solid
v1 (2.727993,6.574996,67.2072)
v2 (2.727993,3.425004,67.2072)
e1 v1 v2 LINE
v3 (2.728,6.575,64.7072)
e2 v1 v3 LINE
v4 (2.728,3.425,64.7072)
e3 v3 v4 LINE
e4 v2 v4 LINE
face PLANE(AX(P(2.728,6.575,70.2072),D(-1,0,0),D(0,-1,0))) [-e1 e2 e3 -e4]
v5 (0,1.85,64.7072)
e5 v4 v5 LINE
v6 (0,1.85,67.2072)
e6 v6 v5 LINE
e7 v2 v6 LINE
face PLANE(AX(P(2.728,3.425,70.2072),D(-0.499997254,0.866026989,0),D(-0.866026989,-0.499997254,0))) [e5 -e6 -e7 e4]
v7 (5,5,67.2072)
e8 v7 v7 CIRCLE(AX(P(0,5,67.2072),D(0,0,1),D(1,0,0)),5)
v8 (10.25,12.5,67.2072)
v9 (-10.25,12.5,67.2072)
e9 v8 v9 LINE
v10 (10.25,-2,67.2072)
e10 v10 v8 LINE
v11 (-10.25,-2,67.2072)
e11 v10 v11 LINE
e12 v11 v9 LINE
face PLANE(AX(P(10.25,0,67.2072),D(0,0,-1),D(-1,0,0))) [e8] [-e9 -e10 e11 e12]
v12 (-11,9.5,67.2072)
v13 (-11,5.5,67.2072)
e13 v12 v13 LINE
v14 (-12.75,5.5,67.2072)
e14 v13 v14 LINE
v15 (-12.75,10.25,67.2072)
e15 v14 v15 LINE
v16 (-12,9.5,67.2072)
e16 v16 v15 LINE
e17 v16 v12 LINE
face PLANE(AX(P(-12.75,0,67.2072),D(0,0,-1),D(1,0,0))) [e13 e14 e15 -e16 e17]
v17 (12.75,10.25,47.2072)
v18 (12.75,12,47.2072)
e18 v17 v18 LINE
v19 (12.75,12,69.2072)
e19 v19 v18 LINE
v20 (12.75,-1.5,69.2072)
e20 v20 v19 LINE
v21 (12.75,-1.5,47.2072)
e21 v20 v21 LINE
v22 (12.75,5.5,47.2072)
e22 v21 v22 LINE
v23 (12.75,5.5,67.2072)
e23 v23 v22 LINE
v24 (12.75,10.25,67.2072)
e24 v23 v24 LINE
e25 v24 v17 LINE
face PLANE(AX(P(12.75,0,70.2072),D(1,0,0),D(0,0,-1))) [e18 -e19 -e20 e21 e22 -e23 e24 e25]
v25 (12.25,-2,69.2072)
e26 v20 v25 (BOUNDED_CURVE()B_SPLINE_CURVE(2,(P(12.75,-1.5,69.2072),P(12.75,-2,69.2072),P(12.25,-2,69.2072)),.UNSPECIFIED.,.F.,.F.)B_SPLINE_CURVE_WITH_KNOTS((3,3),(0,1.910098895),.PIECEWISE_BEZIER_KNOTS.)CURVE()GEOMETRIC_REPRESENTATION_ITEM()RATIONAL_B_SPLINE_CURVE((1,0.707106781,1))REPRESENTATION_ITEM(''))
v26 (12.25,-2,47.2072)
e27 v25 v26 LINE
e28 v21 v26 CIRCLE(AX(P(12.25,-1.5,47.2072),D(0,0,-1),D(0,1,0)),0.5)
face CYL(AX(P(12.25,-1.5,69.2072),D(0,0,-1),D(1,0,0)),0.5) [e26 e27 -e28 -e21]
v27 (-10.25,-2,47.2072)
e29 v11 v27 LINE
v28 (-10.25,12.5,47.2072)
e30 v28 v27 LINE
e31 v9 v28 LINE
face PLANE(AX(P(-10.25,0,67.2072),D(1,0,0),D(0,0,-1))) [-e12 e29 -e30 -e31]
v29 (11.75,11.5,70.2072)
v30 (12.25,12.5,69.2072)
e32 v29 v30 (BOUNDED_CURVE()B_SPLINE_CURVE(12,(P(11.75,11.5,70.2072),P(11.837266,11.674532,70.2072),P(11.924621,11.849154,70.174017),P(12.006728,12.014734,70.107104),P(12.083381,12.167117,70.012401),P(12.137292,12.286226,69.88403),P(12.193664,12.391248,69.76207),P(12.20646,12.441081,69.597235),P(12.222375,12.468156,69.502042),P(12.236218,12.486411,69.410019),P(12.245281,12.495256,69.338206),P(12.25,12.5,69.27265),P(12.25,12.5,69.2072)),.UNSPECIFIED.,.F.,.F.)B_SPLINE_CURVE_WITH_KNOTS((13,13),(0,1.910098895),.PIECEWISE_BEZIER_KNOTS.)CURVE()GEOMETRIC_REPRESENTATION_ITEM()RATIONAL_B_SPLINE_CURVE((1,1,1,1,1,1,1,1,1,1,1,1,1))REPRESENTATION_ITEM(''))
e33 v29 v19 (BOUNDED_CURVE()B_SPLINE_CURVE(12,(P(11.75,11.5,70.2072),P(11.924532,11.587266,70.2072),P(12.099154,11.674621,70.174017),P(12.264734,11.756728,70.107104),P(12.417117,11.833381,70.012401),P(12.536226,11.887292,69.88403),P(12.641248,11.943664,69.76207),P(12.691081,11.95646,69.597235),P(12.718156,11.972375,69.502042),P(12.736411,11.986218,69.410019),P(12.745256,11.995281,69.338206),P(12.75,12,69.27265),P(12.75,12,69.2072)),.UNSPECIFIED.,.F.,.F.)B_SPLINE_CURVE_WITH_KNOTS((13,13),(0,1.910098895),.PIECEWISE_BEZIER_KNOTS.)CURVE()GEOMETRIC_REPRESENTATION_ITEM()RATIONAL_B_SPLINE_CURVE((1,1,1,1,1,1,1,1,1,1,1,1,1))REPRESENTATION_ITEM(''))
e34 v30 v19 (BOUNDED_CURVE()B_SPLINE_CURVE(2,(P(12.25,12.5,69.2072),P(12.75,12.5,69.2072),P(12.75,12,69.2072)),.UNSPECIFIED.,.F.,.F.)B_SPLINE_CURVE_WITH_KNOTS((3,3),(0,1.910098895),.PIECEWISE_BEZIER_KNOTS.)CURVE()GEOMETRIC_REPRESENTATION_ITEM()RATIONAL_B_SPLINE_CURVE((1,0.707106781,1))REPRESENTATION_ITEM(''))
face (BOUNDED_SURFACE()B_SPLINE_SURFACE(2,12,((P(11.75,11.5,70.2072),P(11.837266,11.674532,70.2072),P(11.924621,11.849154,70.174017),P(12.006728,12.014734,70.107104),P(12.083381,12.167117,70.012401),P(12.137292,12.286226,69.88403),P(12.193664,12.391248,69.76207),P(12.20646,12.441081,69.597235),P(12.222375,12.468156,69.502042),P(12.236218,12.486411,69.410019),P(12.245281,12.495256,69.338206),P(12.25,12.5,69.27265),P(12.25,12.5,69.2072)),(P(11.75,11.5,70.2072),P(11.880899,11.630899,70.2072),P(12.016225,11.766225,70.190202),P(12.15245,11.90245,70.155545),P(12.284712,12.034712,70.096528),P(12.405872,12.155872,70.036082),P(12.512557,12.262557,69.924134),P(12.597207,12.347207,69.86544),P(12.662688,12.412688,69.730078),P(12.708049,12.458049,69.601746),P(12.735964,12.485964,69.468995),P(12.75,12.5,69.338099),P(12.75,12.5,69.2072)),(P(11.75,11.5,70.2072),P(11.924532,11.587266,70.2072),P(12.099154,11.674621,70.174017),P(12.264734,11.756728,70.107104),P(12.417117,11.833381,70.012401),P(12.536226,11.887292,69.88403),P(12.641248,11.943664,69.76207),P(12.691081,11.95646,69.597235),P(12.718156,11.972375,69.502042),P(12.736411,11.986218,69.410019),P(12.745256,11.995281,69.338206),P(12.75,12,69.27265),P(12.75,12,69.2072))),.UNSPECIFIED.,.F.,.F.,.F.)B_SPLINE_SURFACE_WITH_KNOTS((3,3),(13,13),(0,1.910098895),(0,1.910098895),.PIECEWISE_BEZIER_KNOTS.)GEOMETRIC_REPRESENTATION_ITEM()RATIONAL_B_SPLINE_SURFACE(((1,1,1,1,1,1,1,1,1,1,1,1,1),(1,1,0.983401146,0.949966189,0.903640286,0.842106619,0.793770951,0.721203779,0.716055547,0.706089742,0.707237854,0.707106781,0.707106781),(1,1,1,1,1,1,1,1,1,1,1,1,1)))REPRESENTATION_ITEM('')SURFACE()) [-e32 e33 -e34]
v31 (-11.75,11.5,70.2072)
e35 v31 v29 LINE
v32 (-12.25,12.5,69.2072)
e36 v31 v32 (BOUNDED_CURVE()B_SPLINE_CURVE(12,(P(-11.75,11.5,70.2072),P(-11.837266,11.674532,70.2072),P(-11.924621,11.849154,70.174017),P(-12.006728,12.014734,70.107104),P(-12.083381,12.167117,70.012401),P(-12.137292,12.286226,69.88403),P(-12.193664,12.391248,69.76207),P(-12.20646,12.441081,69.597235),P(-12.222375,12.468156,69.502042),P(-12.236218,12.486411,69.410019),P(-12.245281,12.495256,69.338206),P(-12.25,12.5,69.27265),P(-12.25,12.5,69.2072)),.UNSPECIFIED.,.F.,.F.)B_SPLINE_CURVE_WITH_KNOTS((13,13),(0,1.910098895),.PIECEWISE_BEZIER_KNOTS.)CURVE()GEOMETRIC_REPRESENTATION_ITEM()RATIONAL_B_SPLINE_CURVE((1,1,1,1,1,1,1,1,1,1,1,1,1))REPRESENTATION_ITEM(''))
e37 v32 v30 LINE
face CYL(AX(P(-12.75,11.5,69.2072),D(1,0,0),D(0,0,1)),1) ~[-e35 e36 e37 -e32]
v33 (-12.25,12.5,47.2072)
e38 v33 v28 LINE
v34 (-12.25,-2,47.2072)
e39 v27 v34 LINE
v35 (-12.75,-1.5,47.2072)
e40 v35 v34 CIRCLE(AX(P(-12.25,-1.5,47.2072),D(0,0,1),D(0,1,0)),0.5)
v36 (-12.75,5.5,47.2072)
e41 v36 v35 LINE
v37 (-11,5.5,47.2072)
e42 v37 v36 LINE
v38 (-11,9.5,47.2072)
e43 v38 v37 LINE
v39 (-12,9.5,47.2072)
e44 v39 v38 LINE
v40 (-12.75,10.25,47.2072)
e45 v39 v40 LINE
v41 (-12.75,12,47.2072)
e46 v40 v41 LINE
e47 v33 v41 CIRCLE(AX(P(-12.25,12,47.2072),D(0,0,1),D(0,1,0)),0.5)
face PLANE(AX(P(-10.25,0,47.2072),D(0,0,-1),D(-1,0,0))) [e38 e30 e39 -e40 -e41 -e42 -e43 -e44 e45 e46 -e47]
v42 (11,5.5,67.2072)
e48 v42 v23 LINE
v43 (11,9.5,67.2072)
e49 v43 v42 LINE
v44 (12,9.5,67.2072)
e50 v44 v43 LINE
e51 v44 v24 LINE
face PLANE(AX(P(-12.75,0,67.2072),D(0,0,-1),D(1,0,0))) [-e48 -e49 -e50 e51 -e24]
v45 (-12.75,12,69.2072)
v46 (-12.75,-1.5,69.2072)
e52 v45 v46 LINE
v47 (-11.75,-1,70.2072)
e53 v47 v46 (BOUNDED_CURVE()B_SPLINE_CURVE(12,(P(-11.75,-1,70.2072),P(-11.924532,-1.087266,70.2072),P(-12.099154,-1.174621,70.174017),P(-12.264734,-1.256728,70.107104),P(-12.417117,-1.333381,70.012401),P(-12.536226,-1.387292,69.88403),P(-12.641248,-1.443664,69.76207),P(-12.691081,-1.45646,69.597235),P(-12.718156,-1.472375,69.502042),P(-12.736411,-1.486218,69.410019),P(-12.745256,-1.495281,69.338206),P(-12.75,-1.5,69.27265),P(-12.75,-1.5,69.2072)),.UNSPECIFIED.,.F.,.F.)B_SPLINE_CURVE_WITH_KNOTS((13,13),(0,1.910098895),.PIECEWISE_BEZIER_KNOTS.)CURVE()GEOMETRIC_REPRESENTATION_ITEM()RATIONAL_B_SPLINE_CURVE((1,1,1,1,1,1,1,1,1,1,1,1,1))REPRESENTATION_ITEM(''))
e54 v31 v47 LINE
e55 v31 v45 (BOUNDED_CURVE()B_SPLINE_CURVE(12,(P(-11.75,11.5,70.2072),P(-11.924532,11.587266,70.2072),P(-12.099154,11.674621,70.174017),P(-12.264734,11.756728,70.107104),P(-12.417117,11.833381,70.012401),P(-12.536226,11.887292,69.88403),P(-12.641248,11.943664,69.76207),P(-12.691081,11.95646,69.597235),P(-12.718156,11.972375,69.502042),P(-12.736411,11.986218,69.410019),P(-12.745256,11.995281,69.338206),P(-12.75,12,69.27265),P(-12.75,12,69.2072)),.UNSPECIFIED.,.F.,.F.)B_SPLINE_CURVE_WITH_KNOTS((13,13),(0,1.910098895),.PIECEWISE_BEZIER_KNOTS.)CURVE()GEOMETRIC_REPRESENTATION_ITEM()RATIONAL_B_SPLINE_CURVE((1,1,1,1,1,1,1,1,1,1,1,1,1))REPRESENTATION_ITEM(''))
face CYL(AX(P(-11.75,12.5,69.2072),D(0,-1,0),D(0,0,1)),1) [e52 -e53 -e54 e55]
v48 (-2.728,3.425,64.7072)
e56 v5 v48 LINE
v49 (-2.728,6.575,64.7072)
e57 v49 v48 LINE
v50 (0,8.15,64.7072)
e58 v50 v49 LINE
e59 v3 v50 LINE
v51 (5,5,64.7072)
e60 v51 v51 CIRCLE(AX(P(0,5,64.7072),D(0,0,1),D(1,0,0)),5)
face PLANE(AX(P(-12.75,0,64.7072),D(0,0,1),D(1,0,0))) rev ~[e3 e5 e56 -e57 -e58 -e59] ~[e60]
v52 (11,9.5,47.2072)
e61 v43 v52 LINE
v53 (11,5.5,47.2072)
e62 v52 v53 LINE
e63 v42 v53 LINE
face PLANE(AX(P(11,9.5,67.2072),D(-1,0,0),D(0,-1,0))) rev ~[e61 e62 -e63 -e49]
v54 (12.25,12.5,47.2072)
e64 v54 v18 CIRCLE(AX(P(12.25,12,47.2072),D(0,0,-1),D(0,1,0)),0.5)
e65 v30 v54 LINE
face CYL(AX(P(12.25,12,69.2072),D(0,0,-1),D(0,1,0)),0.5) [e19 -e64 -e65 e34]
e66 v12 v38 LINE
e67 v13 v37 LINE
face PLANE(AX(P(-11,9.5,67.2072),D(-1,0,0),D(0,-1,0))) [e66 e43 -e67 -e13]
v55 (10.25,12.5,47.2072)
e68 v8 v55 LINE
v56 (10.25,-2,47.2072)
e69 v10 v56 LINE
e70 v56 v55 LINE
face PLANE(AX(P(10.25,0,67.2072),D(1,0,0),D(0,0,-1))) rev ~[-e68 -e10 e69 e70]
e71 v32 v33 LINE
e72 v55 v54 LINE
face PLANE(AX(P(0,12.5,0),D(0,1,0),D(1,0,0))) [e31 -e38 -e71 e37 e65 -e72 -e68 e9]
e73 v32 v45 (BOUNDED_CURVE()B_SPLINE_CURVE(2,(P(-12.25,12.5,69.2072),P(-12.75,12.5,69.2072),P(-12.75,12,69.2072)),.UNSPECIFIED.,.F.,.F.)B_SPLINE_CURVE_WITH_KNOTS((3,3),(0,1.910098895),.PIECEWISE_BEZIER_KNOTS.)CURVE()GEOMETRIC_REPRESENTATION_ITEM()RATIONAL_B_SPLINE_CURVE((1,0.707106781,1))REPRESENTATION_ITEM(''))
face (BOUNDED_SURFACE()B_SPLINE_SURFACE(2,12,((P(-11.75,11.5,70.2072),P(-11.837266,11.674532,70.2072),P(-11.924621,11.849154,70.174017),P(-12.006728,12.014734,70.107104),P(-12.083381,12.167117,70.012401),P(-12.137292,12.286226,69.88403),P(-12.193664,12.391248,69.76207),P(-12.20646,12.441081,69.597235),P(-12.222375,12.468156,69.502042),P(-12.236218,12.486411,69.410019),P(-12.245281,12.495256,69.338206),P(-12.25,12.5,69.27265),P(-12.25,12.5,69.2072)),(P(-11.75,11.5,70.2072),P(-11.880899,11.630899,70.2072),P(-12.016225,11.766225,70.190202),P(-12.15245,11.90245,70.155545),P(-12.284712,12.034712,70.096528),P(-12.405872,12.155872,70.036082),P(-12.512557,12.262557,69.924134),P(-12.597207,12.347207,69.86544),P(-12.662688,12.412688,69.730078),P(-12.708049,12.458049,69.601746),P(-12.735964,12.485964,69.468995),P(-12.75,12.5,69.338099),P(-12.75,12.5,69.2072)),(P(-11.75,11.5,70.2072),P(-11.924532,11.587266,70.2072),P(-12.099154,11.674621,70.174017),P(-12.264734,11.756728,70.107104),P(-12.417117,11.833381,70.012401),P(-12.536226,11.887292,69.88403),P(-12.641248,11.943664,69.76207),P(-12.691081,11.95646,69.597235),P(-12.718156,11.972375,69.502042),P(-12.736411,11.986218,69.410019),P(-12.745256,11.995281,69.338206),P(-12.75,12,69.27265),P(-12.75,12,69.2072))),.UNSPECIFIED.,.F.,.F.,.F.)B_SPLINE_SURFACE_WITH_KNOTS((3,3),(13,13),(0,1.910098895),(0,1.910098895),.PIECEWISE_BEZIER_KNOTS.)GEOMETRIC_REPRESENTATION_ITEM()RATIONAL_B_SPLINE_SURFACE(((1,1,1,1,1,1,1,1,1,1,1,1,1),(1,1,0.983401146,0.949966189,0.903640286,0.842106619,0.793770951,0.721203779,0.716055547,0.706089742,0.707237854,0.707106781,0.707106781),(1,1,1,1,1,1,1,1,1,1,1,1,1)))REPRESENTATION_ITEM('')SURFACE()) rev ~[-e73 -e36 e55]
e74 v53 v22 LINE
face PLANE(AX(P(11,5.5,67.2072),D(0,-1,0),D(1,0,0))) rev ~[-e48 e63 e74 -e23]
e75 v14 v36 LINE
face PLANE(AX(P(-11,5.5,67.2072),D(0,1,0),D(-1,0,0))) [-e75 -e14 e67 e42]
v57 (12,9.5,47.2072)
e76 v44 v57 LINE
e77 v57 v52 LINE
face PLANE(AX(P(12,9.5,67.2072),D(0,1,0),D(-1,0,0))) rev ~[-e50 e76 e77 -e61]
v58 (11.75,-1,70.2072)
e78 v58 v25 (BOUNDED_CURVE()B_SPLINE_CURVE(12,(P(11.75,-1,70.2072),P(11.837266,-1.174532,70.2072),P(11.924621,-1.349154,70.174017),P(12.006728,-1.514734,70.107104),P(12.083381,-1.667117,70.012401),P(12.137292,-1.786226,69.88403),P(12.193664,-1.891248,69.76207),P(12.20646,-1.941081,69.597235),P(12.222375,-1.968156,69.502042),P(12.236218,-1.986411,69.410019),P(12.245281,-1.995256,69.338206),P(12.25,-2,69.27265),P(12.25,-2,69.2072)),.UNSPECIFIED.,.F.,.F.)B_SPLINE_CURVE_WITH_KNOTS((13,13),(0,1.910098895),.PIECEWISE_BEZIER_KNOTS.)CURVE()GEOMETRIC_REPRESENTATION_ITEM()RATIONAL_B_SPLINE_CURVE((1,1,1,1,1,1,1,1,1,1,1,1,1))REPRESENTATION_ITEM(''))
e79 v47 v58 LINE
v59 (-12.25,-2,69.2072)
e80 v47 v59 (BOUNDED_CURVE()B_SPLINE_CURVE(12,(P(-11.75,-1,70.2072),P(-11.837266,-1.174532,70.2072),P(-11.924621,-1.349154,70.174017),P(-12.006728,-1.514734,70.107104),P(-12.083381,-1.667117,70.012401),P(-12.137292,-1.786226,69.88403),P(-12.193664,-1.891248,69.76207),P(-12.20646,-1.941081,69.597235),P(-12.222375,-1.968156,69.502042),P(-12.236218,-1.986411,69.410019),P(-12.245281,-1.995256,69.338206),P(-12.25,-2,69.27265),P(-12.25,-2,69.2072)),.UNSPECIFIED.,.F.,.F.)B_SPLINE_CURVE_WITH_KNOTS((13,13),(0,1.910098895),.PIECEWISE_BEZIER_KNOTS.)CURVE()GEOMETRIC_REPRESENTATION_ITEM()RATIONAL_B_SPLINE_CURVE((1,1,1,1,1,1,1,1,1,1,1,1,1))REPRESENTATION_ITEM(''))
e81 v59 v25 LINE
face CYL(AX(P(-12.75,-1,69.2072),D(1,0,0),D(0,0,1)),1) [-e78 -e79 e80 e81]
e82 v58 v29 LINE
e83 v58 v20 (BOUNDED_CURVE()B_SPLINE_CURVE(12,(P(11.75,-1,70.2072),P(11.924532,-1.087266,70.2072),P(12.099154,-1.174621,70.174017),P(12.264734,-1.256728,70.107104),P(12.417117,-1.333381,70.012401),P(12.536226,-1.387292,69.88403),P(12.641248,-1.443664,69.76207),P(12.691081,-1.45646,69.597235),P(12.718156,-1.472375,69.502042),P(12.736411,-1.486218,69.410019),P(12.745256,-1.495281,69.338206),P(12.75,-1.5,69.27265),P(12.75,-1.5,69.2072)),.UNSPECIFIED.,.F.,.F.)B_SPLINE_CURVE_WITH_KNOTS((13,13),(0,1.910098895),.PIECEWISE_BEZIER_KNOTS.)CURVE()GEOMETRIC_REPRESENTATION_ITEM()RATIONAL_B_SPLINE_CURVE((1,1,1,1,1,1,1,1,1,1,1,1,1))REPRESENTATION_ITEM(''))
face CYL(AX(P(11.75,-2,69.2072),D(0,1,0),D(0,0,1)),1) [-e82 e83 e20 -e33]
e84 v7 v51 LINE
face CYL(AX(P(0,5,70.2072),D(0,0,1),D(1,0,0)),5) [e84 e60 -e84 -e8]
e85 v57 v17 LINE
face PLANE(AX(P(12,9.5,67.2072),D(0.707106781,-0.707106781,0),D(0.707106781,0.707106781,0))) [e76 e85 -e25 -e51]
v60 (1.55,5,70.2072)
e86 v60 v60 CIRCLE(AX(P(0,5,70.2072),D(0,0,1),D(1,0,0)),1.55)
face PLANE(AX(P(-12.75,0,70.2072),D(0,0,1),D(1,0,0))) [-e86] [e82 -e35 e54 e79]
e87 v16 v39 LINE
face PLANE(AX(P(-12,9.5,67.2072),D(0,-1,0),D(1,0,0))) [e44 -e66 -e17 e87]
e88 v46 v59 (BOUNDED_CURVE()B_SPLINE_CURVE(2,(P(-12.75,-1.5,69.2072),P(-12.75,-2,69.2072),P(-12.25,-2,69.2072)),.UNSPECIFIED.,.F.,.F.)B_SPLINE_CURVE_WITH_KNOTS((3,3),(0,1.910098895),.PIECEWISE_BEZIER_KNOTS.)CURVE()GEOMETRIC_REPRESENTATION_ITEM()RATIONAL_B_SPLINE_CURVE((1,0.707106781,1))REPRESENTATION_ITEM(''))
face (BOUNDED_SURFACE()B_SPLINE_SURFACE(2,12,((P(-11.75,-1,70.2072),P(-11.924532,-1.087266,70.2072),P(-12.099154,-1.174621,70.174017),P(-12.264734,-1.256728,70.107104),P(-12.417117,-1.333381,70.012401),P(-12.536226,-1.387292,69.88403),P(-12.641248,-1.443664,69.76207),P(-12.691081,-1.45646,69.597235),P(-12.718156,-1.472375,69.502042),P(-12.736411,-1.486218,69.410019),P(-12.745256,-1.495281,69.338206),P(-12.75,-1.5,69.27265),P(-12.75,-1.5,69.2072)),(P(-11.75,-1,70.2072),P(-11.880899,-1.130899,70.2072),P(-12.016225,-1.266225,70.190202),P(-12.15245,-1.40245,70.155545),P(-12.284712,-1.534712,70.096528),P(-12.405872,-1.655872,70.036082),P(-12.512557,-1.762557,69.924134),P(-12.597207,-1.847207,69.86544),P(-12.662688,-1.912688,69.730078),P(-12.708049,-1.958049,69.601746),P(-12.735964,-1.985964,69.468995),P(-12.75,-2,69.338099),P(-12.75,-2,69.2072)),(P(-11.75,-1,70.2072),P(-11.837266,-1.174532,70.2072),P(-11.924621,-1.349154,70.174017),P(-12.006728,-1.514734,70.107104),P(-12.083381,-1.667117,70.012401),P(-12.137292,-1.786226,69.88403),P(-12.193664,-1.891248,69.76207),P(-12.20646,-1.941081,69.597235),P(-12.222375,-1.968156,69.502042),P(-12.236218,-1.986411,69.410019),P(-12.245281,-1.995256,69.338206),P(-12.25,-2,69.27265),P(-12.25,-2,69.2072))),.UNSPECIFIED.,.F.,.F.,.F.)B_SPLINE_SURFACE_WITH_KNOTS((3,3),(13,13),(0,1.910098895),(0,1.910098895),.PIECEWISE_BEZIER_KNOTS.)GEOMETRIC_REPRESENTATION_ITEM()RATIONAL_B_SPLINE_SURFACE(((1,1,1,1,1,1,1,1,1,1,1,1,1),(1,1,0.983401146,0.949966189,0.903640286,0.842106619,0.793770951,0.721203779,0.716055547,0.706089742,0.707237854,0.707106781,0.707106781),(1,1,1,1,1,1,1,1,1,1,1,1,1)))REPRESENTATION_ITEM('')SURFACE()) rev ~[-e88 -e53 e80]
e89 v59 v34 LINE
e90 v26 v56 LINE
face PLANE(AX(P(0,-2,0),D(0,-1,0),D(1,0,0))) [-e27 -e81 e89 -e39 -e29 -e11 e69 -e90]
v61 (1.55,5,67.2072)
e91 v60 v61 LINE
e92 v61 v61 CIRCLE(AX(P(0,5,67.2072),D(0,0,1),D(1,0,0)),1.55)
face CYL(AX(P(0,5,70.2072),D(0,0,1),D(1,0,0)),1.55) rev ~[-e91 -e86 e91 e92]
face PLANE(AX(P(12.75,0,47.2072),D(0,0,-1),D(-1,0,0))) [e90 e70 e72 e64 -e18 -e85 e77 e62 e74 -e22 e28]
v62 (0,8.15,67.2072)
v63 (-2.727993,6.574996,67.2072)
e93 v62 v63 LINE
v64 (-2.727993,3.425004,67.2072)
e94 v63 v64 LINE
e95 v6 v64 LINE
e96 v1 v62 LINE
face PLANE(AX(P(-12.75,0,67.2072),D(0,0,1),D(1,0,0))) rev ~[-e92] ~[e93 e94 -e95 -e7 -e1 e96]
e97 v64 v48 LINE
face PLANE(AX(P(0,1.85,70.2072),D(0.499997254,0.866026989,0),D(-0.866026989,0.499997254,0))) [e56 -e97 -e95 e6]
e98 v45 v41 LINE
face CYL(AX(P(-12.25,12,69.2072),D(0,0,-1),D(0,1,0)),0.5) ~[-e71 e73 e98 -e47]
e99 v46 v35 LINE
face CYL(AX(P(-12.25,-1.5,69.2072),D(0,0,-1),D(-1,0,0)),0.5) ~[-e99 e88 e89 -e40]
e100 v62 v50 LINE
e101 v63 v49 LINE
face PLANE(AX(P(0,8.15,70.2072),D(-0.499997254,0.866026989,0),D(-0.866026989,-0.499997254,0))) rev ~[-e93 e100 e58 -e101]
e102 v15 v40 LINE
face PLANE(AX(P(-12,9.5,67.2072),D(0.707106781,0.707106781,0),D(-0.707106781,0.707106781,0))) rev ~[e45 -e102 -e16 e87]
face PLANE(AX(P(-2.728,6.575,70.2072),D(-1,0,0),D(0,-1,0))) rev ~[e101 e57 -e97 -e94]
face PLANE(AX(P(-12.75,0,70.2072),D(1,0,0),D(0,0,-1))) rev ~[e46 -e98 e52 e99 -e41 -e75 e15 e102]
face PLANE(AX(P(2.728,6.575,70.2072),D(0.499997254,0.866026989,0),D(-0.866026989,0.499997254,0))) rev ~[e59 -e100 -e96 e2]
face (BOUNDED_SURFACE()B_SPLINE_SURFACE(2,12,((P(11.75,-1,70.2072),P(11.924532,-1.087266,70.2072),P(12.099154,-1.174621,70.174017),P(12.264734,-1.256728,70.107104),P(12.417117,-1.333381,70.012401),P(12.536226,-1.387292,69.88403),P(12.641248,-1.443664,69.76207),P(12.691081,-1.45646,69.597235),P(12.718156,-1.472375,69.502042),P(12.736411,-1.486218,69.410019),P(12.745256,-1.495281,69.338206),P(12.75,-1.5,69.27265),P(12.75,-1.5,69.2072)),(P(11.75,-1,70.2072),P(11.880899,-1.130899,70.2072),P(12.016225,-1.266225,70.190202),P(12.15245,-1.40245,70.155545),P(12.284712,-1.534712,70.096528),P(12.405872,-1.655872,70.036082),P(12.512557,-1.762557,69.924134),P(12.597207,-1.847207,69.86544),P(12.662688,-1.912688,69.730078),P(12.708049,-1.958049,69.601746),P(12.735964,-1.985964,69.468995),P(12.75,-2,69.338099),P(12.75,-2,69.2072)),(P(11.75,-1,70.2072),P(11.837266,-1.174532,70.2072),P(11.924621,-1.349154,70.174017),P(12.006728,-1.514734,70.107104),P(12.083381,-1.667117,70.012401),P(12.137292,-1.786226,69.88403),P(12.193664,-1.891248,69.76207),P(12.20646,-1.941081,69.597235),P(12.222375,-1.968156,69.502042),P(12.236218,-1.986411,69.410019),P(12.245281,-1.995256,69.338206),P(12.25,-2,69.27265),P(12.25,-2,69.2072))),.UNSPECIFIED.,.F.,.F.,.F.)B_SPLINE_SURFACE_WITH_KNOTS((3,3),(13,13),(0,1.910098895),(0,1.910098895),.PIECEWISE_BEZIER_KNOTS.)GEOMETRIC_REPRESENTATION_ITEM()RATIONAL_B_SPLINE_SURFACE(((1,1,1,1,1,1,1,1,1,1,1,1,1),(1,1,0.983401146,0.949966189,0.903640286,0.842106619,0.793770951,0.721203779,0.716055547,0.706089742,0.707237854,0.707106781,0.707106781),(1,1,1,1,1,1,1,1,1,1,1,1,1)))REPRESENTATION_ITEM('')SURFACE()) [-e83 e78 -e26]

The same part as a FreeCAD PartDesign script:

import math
import FreeCAD as App
import Part
import Sketcher
from FreeCAD import Vector
Q = App.Units.Quantity


def edges_at(feature, points):
    """Names of the edges that pass closest to the given points."""
    edges = feature.Shape.Edges
    near = lambda p: min(range(len(edges)), key=lambda i: edges[i].distToShape(Part.Vertex(*p))[0])
    return sorted({f"Edge{near(p) + 1}" for p in points})

doc = App.newDocument("Part")
body = doc.addObject("PartDesign::Body", "Body")

sketch1 = doc.addObject("Sketcher::SketchObject", "Sketch")
body.addObject(sketch1)
sketch1.AttachmentSupport = (doc.XZ_Plane, [""])
sketch1.MapMode = "FlatFace"
sketch1.addGeometry(Part.LineSegment(Vector(12.8, 70.2, 0), Vector(12.8, 67.2, 0)), False)
sketch1.addGeometry(Part.LineSegment(Vector(12.8, 67.2, 0), Vector(-12.8, 67.2, 0)), False)
sketch1.addGeometry(Part.LineSegment(Vector(-12.8, 67.2, 0), Vector(-12.8, 70.2, 0)), False)
sketch1.addGeometry(Part.LineSegment(Vector(-12.8, 70.2, 0), Vector(12.8, 70.2, 0)), False)
sketch1.addConstraint(Sketcher.Constraint("Coincident", 0, 2, 1, 1))
sketch1.addConstraint(Sketcher.Constraint("Coincident", 1, 2, 2, 1))
sketch1.addConstraint(Sketcher.Constraint("Coincident", 2, 2, 3, 1))
sketch1.addConstraint(Sketcher.Constraint("Coincident", 3, 2, 0, 1))
sketch1.addConstraint(Sketcher.Constraint("Vertical", 0))
sketch1.addConstraint(Sketcher.Constraint("Horizontal", 1))
sketch1.addConstraint(Sketcher.Constraint("Vertical", 2))
sketch1.addConstraint(Sketcher.Constraint("Horizontal", 3))
sketch1.addConstraint(Sketcher.Constraint("DistanceY", 0, 2, 0, 1, Q("3 mm")))
sketch1.addConstraint(Sketcher.Constraint("DistanceX", 1, 2, 1, 1, Q("25.5 mm")))
sketch1.addConstraint(Sketcher.Constraint("DistanceX", -1, 1, 0, 2, Q("12.75 mm")))
sketch1.addConstraint(Sketcher.Constraint("DistanceY", -1, 1, 0, 2, Q("67.2072 mm")))
pad1 = doc.addObject("PartDesign::Pad", "Pad")
body.addObject(pad1)
pad1.Profile = sketch1
pad1.Length = 14
pad1.Reversed = True

sketch2 = doc.addObject("Sketcher::SketchObject", "Sketch001")
body.addObject(sketch2)
sketch2.AttachmentSupport = (doc.XY_Plane, [""])
sketch2.MapMode = "FlatFace"
sketch2.AttachmentOffset = App.Placement(Vector(0, 0, 67.2072), App.Rotation())
sketch2.addGeometry(Part.LineSegment(Vector(10.2, 14, 0), Vector(12.8, 14, 0)), False)
sketch2.addGeometry(Part.LineSegment(Vector(12.8, 14, 0), Vector(12.8, 10.2, 0)), False)
sketch2.addGeometry(Part.LineSegment(Vector(12.8, 10.2, 0), Vector(12, 9.5, 0)), False)
sketch2.addGeometry(Part.LineSegment(Vector(12, 9.5, 0), Vector(11, 9.5, 0)), False)
sketch2.addGeometry(Part.LineSegment(Vector(11, 9.5, 0), Vector(11, 5.5, 0)), False)
sketch2.addGeometry(Part.LineSegment(Vector(11, 5.5, 0), Vector(12.8, 5.5, 0)), False)
sketch2.addGeometry(Part.LineSegment(Vector(12.8, 5.5, 0), Vector(12.8, 0, 0)), False)
sketch2.addGeometry(Part.LineSegment(Vector(12.8, 0, 0), Vector(10.2, 0, 0)), False)
sketch2.addGeometry(Part.LineSegment(Vector(10.2, 0, 0), Vector(10.2, 14, 0)), False)
sketch2.addGeometry(Part.LineSegment(Vector(-12.8, 10.2, 0), Vector(-12.8, 14, 0)), False)
sketch2.addGeometry(Part.LineSegment(Vector(-12.8, 14, 0), Vector(-10.2, 14, 0)), False)
sketch2.addGeometry(Part.LineSegment(Vector(-10.2, 14, 0), Vector(-10.2, 0, 0)), False)
sketch2.addGeometry(Part.LineSegment(Vector(-10.2, 0, 0), Vector(-12.8, 0, 0)), False)
sketch2.addGeometry(Part.LineSegment(Vector(-12.8, 0, 0), Vector(-12.8, 5.5, 0)), False)
sketch2.addGeometry(Part.LineSegment(Vector(-12.8, 5.5, 0), Vector(-11, 5.5, 0)), False)
sketch2.addGeometry(Part.LineSegment(Vector(-11, 5.5, 0), Vector(-11, 9.5, 0)), False)
sketch2.addGeometry(Part.LineSegment(Vector(-11, 9.5, 0), Vector(-12, 9.5, 0)), False)
sketch2.addGeometry(Part.LineSegment(Vector(-12, 9.5, 0), Vector(-12.8, 10.2, 0)), False)
sketch2.addConstraint(Sketcher.Constraint("Coincident", 0, 2, 1, 1))
sketch2.addConstraint(Sketcher.Constraint("Coincident", 1, 2, 2, 1))
sketch2.addConstraint(Sketcher.Constraint("Coincident", 2, 2, 3, 1))
sketch2.addConstraint(Sketcher.Constraint("Coincident", 3, 2, 4, 1))
sketch2.addConstraint(Sketcher.Constraint("Coincident", 4, 2, 5, 1))
sketch2.addConstraint(Sketcher.Constraint("Coincident", 5, 2, 6, 1))
sketch2.addConstraint(Sketcher.Constraint("Coincident", 6, 2, 7, 1))
sketch2.addConstraint(Sketcher.Constraint("Coincident", 7, 2, 8, 1))
sketch2.addConstraint(Sketcher.Constraint("Coincident", 8, 2, 0, 1))
sketch2.addConstraint(Sketcher.Constraint("Coincident", 9, 2, 10, 1))
sketch2.addConstraint(Sketcher.Constraint("Coincident", 10, 2, 11, 1))
sketch2.addConstraint(Sketcher.Constraint("Coincident", 11, 2, 12, 1))
sketch2.addConstraint(Sketcher.Constraint("Coincident", 12, 2, 13, 1))
sketch2.addConstraint(Sketcher.Constraint("Coincident", 13, 2, 14, 1))
sketch2.addConstraint(Sketcher.Constraint("Coincident", 14, 2, 15, 1))
sketch2.addConstraint(Sketcher.Constraint("Coincident", 15, 2, 16, 1))
sketch2.addConstraint(Sketcher.Constraint("Coincident", 16, 2, 17, 1))
sketch2.addConstraint(Sketcher.Constraint("Coincident", 17, 2, 9, 1))
sketch2.addConstraint(Sketcher.Constraint("Horizontal", 0))
sketch2.addConstraint(Sketcher.Constraint("Vertical", 1))
sketch2.addConstraint(Sketcher.Constraint("Horizontal", 3))
sketch2.addConstraint(Sketcher.Constraint("Vertical", 4))
sketch2.addConstraint(Sketcher.Constraint("Horizontal", 5))
sketch2.addConstraint(Sketcher.Constraint("Vertical", 6))
sketch2.addConstraint(Sketcher.Constraint("Horizontal", 7))
sketch2.addConstraint(Sketcher.Constraint("Vertical", 8))
sketch2.addConstraint(Sketcher.Constraint("Vertical", 9))
sketch2.addConstraint(Sketcher.Constraint("Horizontal", 10))
sketch2.addConstraint(Sketcher.Constraint("Vertical", 11))
sketch2.addConstraint(Sketcher.Constraint("Horizontal", 12))
sketch2.addConstraint(Sketcher.Constraint("Vertical", 13))
sketch2.addConstraint(Sketcher.Constraint("Horizontal", 14))
sketch2.addConstraint(Sketcher.Constraint("Vertical", 15))
sketch2.addConstraint(Sketcher.Constraint("Horizontal", 16))
sketch2.addConstraint(Sketcher.Constraint("Symmetric", 7, 2, 11, 2, -1, 1))
sketch2.addConstraint(Sketcher.Constraint("Symmetric", 0, 2, 9, 2, -2))
sketch2.addConstraint(Sketcher.Constraint("Symmetric", 6, 2, 12, 2, -2))
sketch2.addConstraint(Sketcher.Constraint("Symmetric", 4, 2, 14, 2, -2))
sketch2.addConstraint(Sketcher.Constraint("Symmetric", 2, 2, 16, 2, -2))
sketch2.addConstraint(Sketcher.Constraint("Perpendicular", 2, 17))
sketch2.addConstraint(Sketcher.Constraint("Horizontal", 1, 2, 17, 2))
sketch2.addConstraint(Sketcher.Constraint("Vertical", 1, 2, 5, 2))
sketch2.addConstraint(Sketcher.Constraint("DistanceY", 6, 2, 6, 1, Q("5.5 mm")))
sketch2.addConstraint(Sketcher.Constraint("DistanceX", 10, 2, 8, 2, Q("20.5 mm")))
sketch2.addConstraint(Sketcher.Constraint("DistanceX", 3, 2, 3, 1, Q("1 mm")))
sketch2.addConstraint(Sketcher.Constraint("DistanceY", 4, 2, 4, 1, Q("4 mm")))
sketch2.addConstraint(Sketcher.Constraint("DistanceY", 8, 1, 8, 2, Q("14 mm")))
sketch2.addConstraint(Sketcher.Constraint("DistanceX", 0, 1, 0, 2, Q("2.5 mm")))
sketch2.addConstraint(Sketcher.Constraint("DistanceX", -1, 1, 2, 2, Q("12 mm")))
pad2 = doc.addObject("PartDesign::Pad", "Pad001")
body.addObject(pad2)
pad2.Profile = sketch2
pad2.Length = 20
pad2.Reversed = True

sketch3 = doc.addObject("Sketcher::SketchObject", "Sketch002")
body.addObject(sketch3)
sketch3.AttachmentSupport = (doc.XY_Plane, [""])
sketch3.MapMode = "FlatFace"
sketch3.AttachmentOffset = App.Placement(Vector(0, 0, 70.2072), App.Rotation())
sketch3.addGeometry(Part.Circle(Vector(0, 5, 0), Vector(0, 0, 1), 1.6), False)
sketch3.addConstraint(Sketcher.Constraint("PointOnObject", 0, 3, -2))
sketch3.addConstraint(Sketcher.Constraint("Diameter", 0, Q("3.1 mm")))
sketch3.addConstraint(Sketcher.Constraint("DistanceY", -1, 1, 0, 3, Q("5 mm")))
pocket1 = doc.addObject("PartDesign::Pocket", "Pocket")
body.addObject(pocket1)
pocket1.Profile = sketch3
pocket1.Length = 5.5

sketch4 = doc.addObject("Sketcher::SketchObject", "Sketch003")
body.addObject(sketch4)
sketch4.AttachmentSupport = (doc.XY_Plane, [""])
sketch4.MapMode = "FlatFace"
sketch4.AttachmentOffset = App.Placement(Vector(0, 0, 70.2072), App.Rotation())
sketch4.addGeometry(Part.LineSegment(Vector(2.7, 3.4, 0), Vector(2.7, 6.6, 0)), False)
sketch4.addGeometry(Part.LineSegment(Vector(2.7, 6.6, 0), Vector(0, 8.2, 0)), False)
sketch4.addGeometry(Part.LineSegment(Vector(0, 8.2, 0), Vector(-2.7, 6.6, 0)), False)
sketch4.addGeometry(Part.LineSegment(Vector(-2.7, 6.6, 0), Vector(-2.7, 3.4, 0)), False)
sketch4.addGeometry(Part.LineSegment(Vector(-2.7, 3.4, 0), Vector(0, 1.9, 0)), False)
sketch4.addGeometry(Part.LineSegment(Vector(0, 1.9, 0), Vector(2.7, 3.4, 0)), False)
sketch4.addGeometry(Part.Circle(Vector(0, 5, 0), Vector(0, 0, 1), 1.6), False)
sketch4.addConstraint(Sketcher.Constraint("Coincident", 0, 2, 1, 1))
sketch4.addConstraint(Sketcher.Constraint("Coincident", 1, 2, 2, 1))
sketch4.addConstraint(Sketcher.Constraint("Coincident", 2, 2, 3, 1))
sketch4.addConstraint(Sketcher.Constraint("Coincident", 3, 2, 4, 1))
sketch4.addConstraint(Sketcher.Constraint("Coincident", 4, 2, 5, 1))
sketch4.addConstraint(Sketcher.Constraint("Coincident", 5, 2, 0, 1))
sketch4.addConstraint(Sketcher.Constraint("Vertical", 0))
sketch4.addConstraint(Sketcher.Constraint("Vertical", 3))
sketch4.addConstraint(Sketcher.Constraint("Symmetric", 0, 2, 2, 2, -2))
sketch4.addConstraint(Sketcher.Constraint("PointOnObject", 6, 3, -2))
sketch4.addConstraint(Sketcher.Constraint("PointOnObject", 1, 2, -2))
sketch4.addConstraint(Sketcher.Constraint("PointOnObject", 4, 2, -2))
sketch4.addConstraint(Sketcher.Constraint("Parallel", 1, 4))
sketch4.addConstraint(Sketcher.Constraint("Parallel", 2, 5))
sketch4.addConstraint(Sketcher.Constraint("Diameter", 6, Q("3.1 mm")))
sketch4.addConstraint(Sketcher.Constraint("DistanceY", -1, 1, 6, 3, Q("5 mm")))
sketch4.addConstraint(Sketcher.Constraint("DistanceY", 4, 2, 1, 2, Q("6.3 mm")))
sketch4.addConstraint(Sketcher.Constraint("Angle", 1, Q("150.0002 deg")))
sketch4.addConstraint(Sketcher.Constraint("DistanceY", 0, 1, 0, 2, Q("3.15 mm")))
sketch4.addConstraint(Sketcher.Constraint("DistanceY", -1, 1, 1, 2, Q("8.15 mm")))
pocket2 = doc.addObject("PartDesign::Pocket", "Pocket001")
body.addObject(pocket2)
pocket2.Profile = sketch4
pocket2.Length = 5.5

sketch5 = doc.addObject("Sketcher::SketchObject", "Sketch004")
body.addObject(sketch5)
sketch5.AttachmentSupport = (doc.XZ_Plane, [""])
sketch5.MapMode = "FlatFace"
sketch5.addGeometry(Part.LineSegment(Vector(12.8, 70.2, 0), Vector(-12.8, 70.2, 0)), False)
sketch5.addGeometry(Part.LineSegment(Vector(-12.8, 70.2, 0), Vector(-12.8, 47.2, 0)), False)
sketch5.addGeometry(Part.LineSegment(Vector(-12.8, 47.2, 0), Vector(-10.2, 47.2, 0)), False)
sketch5.addGeometry(Part.LineSegment(Vector(-10.2, 47.2, 0), Vector(-10.2, 67.2, 0)), False)
sketch5.addGeometry(Part.LineSegment(Vector(-10.2, 67.2, 0), Vector(10.2, 67.2, 0)), False)
sketch5.addGeometry(Part.LineSegment(Vector(10.2, 67.2, 0), Vector(10.2, 47.2, 0)), False)
sketch5.addGeometry(Part.LineSegment(Vector(10.2, 47.2, 0), Vector(12.8, 47.2, 0)), False)
sketch5.addGeometry(Part.LineSegment(Vector(12.8, 47.2, 0), Vector(12.8, 70.2, 0)), False)
sketch5.addConstraint(Sketcher.Constraint("Coincident", 0, 2, 1, 1))
sketch5.addConstraint(Sketcher.Constraint("Coincident", 1, 2, 2, 1))
sketch5.addConstraint(Sketcher.Constraint("Coincident", 2, 2, 3, 1))
sketch5.addConstraint(Sketcher.Constraint("Coincident", 3, 2, 4, 1))
sketch5.addConstraint(Sketcher.Constraint("Coincident", 4, 2, 5, 1))
sketch5.addConstraint(Sketcher.Constraint("Coincident", 5, 2, 6, 1))
sketch5.addConstraint(Sketcher.Constraint("Coincident", 6, 2, 7, 1))
sketch5.addConstraint(Sketcher.Constraint("Coincident", 7, 2, 0, 1))
sketch5.addConstraint(Sketcher.Constraint("Horizontal", 0))
sketch5.addConstraint(Sketcher.Constraint("Vertical", 1))
sketch5.addConstraint(Sketcher.Constraint("Horizontal", 2))
sketch5.addConstraint(Sketcher.Constraint("Vertical", 3))
sketch5.addConstraint(Sketcher.Constraint("Horizontal", 4))
sketch5.addConstraint(Sketcher.Constraint("Vertical", 5))
sketch5.addConstraint(Sketcher.Constraint("Horizontal", 6))
sketch5.addConstraint(Sketcher.Constraint("Vertical", 7))
sketch5.addConstraint(Sketcher.Constraint("Symmetric", 2, 2, 5, 2, -2))
sketch5.addConstraint(Sketcher.Constraint("Equal", 2, 6))
sketch5.addConstraint(Sketcher.Constraint("DistanceY", 1, 2, 1, 1, Q("23 mm")))
sketch5.addConstraint(Sketcher.Constraint("DistanceY", 3, 1, 3, 2, Q("20 mm")))
sketch5.addConstraint(Sketcher.Constraint("DistanceX", 0, 2, 0, 1, Q("25.5 mm")))
sketch5.addConstraint(Sketcher.Constraint("DistanceX", 2, 1, 2, 2, Q("2.5 mm")))
sketch5.addConstraint(Sketcher.Constraint("DistanceY", -1, 1, 0, 2, Q("70.2072 mm")))
pad3 = doc.addObject("PartDesign::Pad", "Pad002")
body.addObject(pad3)
pad3.Profile = sketch5
pad3.Length = 2

sketch6 = doc.addObject("Sketcher::SketchObject", "Sketch005")
body.addObject(sketch6)
sketch6.AttachmentSupport = (doc.XY_Plane, [""])
sketch6.MapMode = "FlatFace"
sketch6.AttachmentOffset = App.Placement(Vector(0, 0, 70.2072), App.Rotation())
sketch6.addGeometry(Part.Circle(Vector(0, 5, 0), Vector(0, 0, 1), 5), False)
sketch6.addGeometry(Part.Circle(Vector(0, 5, 0), Vector(0, 0, 1), 3.1), False)
sketch6.addConstraint(Sketcher.Constraint("Coincident", 1, 3, 0, 3))
sketch6.addConstraint(Sketcher.Constraint("PointOnObject", 0, 3, -2))
sketch6.addConstraint(Sketcher.Constraint("Diameter", 0, Q("10 mm")))
sketch6.addConstraint(Sketcher.Constraint("Diameter", 1, Q("6.3 mm")))
sketch6.addConstraint(Sketcher.Constraint("DistanceY", -1, 1, 0, 3, Q("5 mm")))
pad4 = doc.addObject("PartDesign::Pad", "Pad003")
body.addObject(pad4)
pad4.Profile = sketch6
pad4.Length = 5.5
pad4.Reversed = True

sketch7 = doc.addObject("Sketcher::SketchObject", "Sketch006")
body.addObject(sketch7)
sketch7.AttachmentSupport = (doc.XY_Plane, [""])
sketch7.MapMode = "FlatFace"
sketch7.AttachmentOffset = App.Placement(Vector(0, 0, 70.2072), App.Rotation())
sketch7.addGeometry(Part.LineSegment(Vector(2.7, 3.4, 0), Vector(2.7, 6.6, 0)), False)
sketch7.addGeometry(Part.LineSegment(Vector(2.7, 6.6, 0), Vector(0, 8.2, 0)), False)
sketch7.addGeometry(Part.LineSegment(Vector(0, 8.2, 0), Vector(-2.7, 6.6, 0)), False)
sketch7.addGeometry(Part.LineSegment(Vector(-2.7, 6.6, 0), Vector(-2.7, 3.4, 0)), False)
sketch7.addGeometry(Part.LineSegment(Vector(-2.7, 3.4, 0), Vector(0, 1.9, 0)), False)
sketch7.addGeometry(Part.LineSegment(Vector(0, 1.9, 0), Vector(2.7, 3.4, 0)), False)
sketch7.addGeometry(Part.Circle(Vector(0, 5, 0), Vector(0, 0, 1), 1.6), False)
sketch7.addConstraint(Sketcher.Constraint("Coincident", 0, 2, 1, 1))
sketch7.addConstraint(Sketcher.Constraint("Coincident", 1, 2, 2, 1))
sketch7.addConstraint(Sketcher.Constraint("Coincident", 2, 2, 3, 1))
sketch7.addConstraint(Sketcher.Constraint("Coincident", 3, 2, 4, 1))
sketch7.addConstraint(Sketcher.Constraint("Coincident", 4, 2, 5, 1))
sketch7.addConstraint(Sketcher.Constraint("Coincident", 5, 2, 0, 1))
sketch7.addConstraint(Sketcher.Constraint("Vertical", 0))
sketch7.addConstraint(Sketcher.Constraint("Vertical", 3))
sketch7.addConstraint(Sketcher.Constraint("Symmetric", 0, 2, 2, 2, -2))
sketch7.addConstraint(Sketcher.Constraint("PointOnObject", 6, 3, -2))
sketch7.addConstraint(Sketcher.Constraint("PointOnObject", 1, 2, -2))
sketch7.addConstraint(Sketcher.Constraint("PointOnObject", 4, 2, -2))
sketch7.addConstraint(Sketcher.Constraint("Parallel", 1, 4))
sketch7.addConstraint(Sketcher.Constraint("Parallel", 2, 5))
sketch7.addConstraint(Sketcher.Constraint("Diameter", 6, Q("3.1 mm")))
sketch7.addConstraint(Sketcher.Constraint("DistanceY", -1, 1, 6, 3, Q("5 mm")))
sketch7.addConstraint(Sketcher.Constraint("DistanceY", 4, 2, 1, 2, Q("6.3 mm")))
sketch7.addConstraint(Sketcher.Constraint("Angle", 1, Q("150.0002 deg")))
sketch7.addConstraint(Sketcher.Constraint("DistanceY", 0, 1, 0, 2, Q("3.15 mm")))
sketch7.addConstraint(Sketcher.Constraint("DistanceY", -1, 1, 1, 2, Q("8.15 mm")))
pad5 = doc.addObject("PartDesign::Pad", "Pad004")
body.addObject(pad5)
pad5.Profile = sketch7
pad5.Length = 3
pad5.Reversed = True

sketch8 = doc.addObject("Sketcher::SketchObject", "Sketch007")
body.addObject(sketch8)
sketch8.AttachmentSupport = (doc.XY_Plane, [""])
sketch8.MapMode = "FlatFace"
sketch8.AttachmentOffset = App.Placement(Vector(0, 0, 70.2072), App.Rotation())
sketch8.addGeometry(Part.ArcOfCircle(Part.Circle(Vector(0, 5, 0), Vector(0, 0, 1), 3.1), math.radians(-30), math.radians(30)), False)
sketch8.addGeometry(Part.LineSegment(Vector(2.7, 3.4, 0), Vector(2.7, 6.6, 0)), False)
sketch8.addGeometry(Part.LineSegment(Vector(0, 8.2, 0), Vector(2.7, 6.6, 0)), False)
sketch8.addGeometry(Part.ArcOfCircle(Part.Circle(Vector(0, 5, 0), Vector(0, 0, 1), 3.1), math.radians(30), math.radians(90)), False)
sketch8.addGeometry(Part.ArcOfCircle(Part.Circle(Vector(0, 5, 0), Vector(0, 0, 1), 3.1), math.radians(-90), math.radians(-30)), False)
sketch8.addGeometry(Part.LineSegment(Vector(0, 1.9, 0), Vector(2.7, 3.4, 0)), False)
sketch8.addGeometry(Part.LineSegment(Vector(-2.7, 6.6, 0), Vector(0, 8.2, 0)), False)
sketch8.addGeometry(Part.ArcOfCircle(Part.Circle(Vector(0, 5, 0), Vector(0, 0, 1), 3.1), math.radians(90), math.radians(150)), False)
sketch8.addGeometry(Part.ArcOfCircle(Part.Circle(Vector(0, 5, 0), Vector(0, 0, 1), 3.1), math.radians(-150), math.radians(-90)), False)
sketch8.addGeometry(Part.LineSegment(Vector(0, 1.9, 0), Vector(-2.7, 3.4, 0)), False)
sketch8.addGeometry(Part.LineSegment(Vector(-2.7, 3.4, 0), Vector(-2.7, 6.6, 0)), False)
sketch8.addGeometry(Part.ArcOfCircle(Part.Circle(Vector(0, 5, 0), Vector(0, 0, 1), 3.1), math.radians(150), math.radians(210)), False)
sketch8.addConstraint(Sketcher.Constraint("Coincident", 0, 1, 1, 1))
sketch8.addConstraint(Sketcher.Constraint("Coincident", 1, 2, 0, 2))
sketch8.addConstraint(Sketcher.Constraint("Coincident", 2, 1, 3, 2))
sketch8.addConstraint(Sketcher.Constraint("Coincident", 3, 1, 2, 2))
sketch8.addConstraint(Sketcher.Constraint("Coincident", 4, 1, 5, 1))
sketch8.addConstraint(Sketcher.Constraint("Coincident", 5, 2, 4, 2))
sketch8.addConstraint(Sketcher.Constraint("Coincident", 6, 1, 7, 2))
sketch8.addConstraint(Sketcher.Constraint("Coincident", 7, 1, 6, 2))
sketch8.addConstraint(Sketcher.Constraint("Coincident", 8, 1, 9, 2))
sketch8.addConstraint(Sketcher.Constraint("Coincident", 9, 1, 8, 2))
sketch8.addConstraint(Sketcher.Constraint("Coincident", 10, 1, 11, 2))
sketch8.addConstraint(Sketcher.Constraint("Coincident", 11, 1, 10, 2))
sketch8.addConstraint(Sketcher.Constraint("Vertical", 1))
sketch8.addConstraint(Sketcher.Constraint("Vertical", 10))
sketch8.addConstraint(Sketcher.Constraint("Coincident", 3, 3, 0, 3))
sketch8.addConstraint(Sketcher.Constraint("Coincident", 4, 3, 0, 3))
sketch8.addConstraint(Sketcher.Constraint("Coincident", 7, 3, 0, 3))
sketch8.addConstraint(Sketcher.Constraint("Coincident", 8, 3, 0, 3))
sketch8.addConstraint(Sketcher.Constraint("Coincident", 11, 3, 0, 3))
sketch8.addConstraint(Sketcher.Constraint("Coincident", 3, 1, 1, 2))
sketch8.addConstraint(Sketcher.Constraint("Coincident", 5, 2, 0, 1))
sketch8.addConstraint(Sketcher.Constraint("Coincident", 7, 1, 2, 1))
sketch8.addConstraint(Sketcher.Constraint("Coincident", 9, 1, 4, 1))
sketch8.addConstraint(Sketcher.Constraint("Coincident", 10, 1, 8, 1))
sketch8.addConstraint(Sketcher.Constraint("Symmetric", 1, 2, 6, 1, -2))
sketch8.addConstraint(Sketcher.Constraint("PointOnObject", 2, 1, -2))
sketch8.addConstraint(Sketcher.Constraint("PointOnObject", 4, 1, -2))
sketch8.addConstraint(Sketcher.Constraint("Parallel", 2, 9))
sketch8.addConstraint(Sketcher.Constraint("Radius", 0, Q("3.15 mm")))
sketch8.addConstraint(Sketcher.Constraint("DistanceY", -1, 1, 0, 3, Q("5 mm")))
sketch8.addConstraint(Sketcher.Constraint("Angle", 2, Q("-29.9998 deg")))
pad6 = doc.addObject("PartDesign::Pad", "Pad005")
body.addObject(pad6)
pad6.Profile = sketch8
pad6.Length = 5.5
pad6.Reversed = True

sketch9 = doc.addObject("Sketcher::SketchObject", "Sketch008")
body.addObject(sketch9)
sketch9.AttachmentSupport = (doc.XZ_Plane, [""])
sketch9.MapMode = "FlatFace"
sketch9.AttachmentOffset = App.Placement(Vector(0, 0, -14), App.Rotation())
sketch9.addGeometry(Part.LineSegment(Vector(-12.8, 47.2, 0), Vector(-12.8, 70.2, 0)), False)
sketch9.addGeometry(Part.LineSegment(Vector(-12.8, 70.2, 0), Vector(12.8, 70.2, 0)), False)
sketch9.addGeometry(Part.LineSegment(Vector(12.8, 70.2, 0), Vector(12.8, 47.2, 0)), False)
sketch9.addGeometry(Part.LineSegment(Vector(12.8, 47.2, 0), Vector(10.2, 47.2, 0)), False)
sketch9.addGeometry(Part.LineSegment(Vector(10.2, 47.2, 0), Vector(10.2, 67.2, 0)), False)
sketch9.addGeometry(Part.LineSegment(Vector(10.2, 67.2, 0), Vector(-10.2, 67.2, 0)), False)
sketch9.addGeometry(Part.LineSegment(Vector(-10.2, 67.2, 0), Vector(-10.2, 47.2, 0)), False)
sketch9.addGeometry(Part.LineSegment(Vector(-10.2, 47.2, 0), Vector(-12.8, 47.2, 0)), False)
sketch9.addConstraint(Sketcher.Constraint("Coincident", 0, 2, 1, 1))
sketch9.addConstraint(Sketcher.Constraint("Coincident", 1, 2, 2, 1))
sketch9.addConstraint(Sketcher.Constraint("Coincident", 2, 2, 3, 1))
sketch9.addConstraint(Sketcher.Constraint("Coincident", 3, 2, 4, 1))
sketch9.addConstraint(Sketcher.Constraint("Coincident", 4, 2, 5, 1))
sketch9.addConstraint(Sketcher.Constraint("Coincident", 5, 2, 6, 1))
sketch9.addConstraint(Sketcher.Constraint("Coincident", 6, 2, 7, 1))
sketch9.addConstraint(Sketcher.Constraint("Coincident", 7, 2, 0, 1))
sketch9.addConstraint(Sketcher.Constraint("Vertical", 0))
sketch9.addConstraint(Sketcher.Constraint("Horizontal", 1))
sketch9.addConstraint(Sketcher.Constraint("Vertical", 2))
sketch9.addConstraint(Sketcher.Constraint("Horizontal", 3))
sketch9.addConstraint(Sketcher.Constraint("Vertical", 4))
sketch9.addConstraint(Sketcher.Constraint("Horizontal", 5))
sketch9.addConstraint(Sketcher.Constraint("Vertical", 6))
sketch9.addConstraint(Sketcher.Constraint("Horizontal", 7))
sketch9.addConstraint(Sketcher.Constraint("Symmetric", 3, 2, 6, 2, -2))
sketch9.addConstraint(Sketcher.Constraint("Equal", 3, 7))
sketch9.addConstraint(Sketcher.Constraint("DistanceY", 0, 1, 0, 2, Q("23 mm")))
sketch9.addConstraint(Sketcher.Constraint("DistanceY", 4, 1, 4, 2, Q("20 mm")))
sketch9.addConstraint(Sketcher.Constraint("DistanceX", 1, 1, 1, 2, Q("25.5 mm")))
sketch9.addConstraint(Sketcher.Constraint("DistanceX", 3, 2, 3, 1, Q("2.5 mm")))
sketch9.addConstraint(Sketcher.Constraint("DistanceY", -1, 1, 0, 2, Q("70.2072 mm")))
pocket3 = doc.addObject("PartDesign::Pocket", "Pocket002")
body.addObject(pocket3)
pocket3.Profile = sketch9
pocket3.Length = 1.5
pocket3.Reversed = True
doc.recompute()

fillet = doc.addObject("PartDesign::Fillet", "Fillet")
body.addObject(fillet)
fillet.Base = (pocket3, edges_at(pocket3, [
    (0, 12.5, 70.207),
    (12.75, 5.25, 70.207),
    (0, -2, 70.207),
    (-12.75, 5.25, 70.207),
]))
fillet.Radius = 1
doc.recompute()

fillet2 = doc.addObject("PartDesign::Fillet", "Fillet001")
body.addObject(fillet2)
fillet2.Base = (fillet, edges_at(fillet, [
    (-12.457, 12.207, 69.914),
    (-12.457, -1.707, 69.914),
    (-12.75, -2, 58.207),
    (12.457, -1.707, 69.914),
    (12.75, -2, 58.207),
    (12.457, 12.207, 69.914),
]))
fillet2.Radius = 0.5

doc.recompute()
